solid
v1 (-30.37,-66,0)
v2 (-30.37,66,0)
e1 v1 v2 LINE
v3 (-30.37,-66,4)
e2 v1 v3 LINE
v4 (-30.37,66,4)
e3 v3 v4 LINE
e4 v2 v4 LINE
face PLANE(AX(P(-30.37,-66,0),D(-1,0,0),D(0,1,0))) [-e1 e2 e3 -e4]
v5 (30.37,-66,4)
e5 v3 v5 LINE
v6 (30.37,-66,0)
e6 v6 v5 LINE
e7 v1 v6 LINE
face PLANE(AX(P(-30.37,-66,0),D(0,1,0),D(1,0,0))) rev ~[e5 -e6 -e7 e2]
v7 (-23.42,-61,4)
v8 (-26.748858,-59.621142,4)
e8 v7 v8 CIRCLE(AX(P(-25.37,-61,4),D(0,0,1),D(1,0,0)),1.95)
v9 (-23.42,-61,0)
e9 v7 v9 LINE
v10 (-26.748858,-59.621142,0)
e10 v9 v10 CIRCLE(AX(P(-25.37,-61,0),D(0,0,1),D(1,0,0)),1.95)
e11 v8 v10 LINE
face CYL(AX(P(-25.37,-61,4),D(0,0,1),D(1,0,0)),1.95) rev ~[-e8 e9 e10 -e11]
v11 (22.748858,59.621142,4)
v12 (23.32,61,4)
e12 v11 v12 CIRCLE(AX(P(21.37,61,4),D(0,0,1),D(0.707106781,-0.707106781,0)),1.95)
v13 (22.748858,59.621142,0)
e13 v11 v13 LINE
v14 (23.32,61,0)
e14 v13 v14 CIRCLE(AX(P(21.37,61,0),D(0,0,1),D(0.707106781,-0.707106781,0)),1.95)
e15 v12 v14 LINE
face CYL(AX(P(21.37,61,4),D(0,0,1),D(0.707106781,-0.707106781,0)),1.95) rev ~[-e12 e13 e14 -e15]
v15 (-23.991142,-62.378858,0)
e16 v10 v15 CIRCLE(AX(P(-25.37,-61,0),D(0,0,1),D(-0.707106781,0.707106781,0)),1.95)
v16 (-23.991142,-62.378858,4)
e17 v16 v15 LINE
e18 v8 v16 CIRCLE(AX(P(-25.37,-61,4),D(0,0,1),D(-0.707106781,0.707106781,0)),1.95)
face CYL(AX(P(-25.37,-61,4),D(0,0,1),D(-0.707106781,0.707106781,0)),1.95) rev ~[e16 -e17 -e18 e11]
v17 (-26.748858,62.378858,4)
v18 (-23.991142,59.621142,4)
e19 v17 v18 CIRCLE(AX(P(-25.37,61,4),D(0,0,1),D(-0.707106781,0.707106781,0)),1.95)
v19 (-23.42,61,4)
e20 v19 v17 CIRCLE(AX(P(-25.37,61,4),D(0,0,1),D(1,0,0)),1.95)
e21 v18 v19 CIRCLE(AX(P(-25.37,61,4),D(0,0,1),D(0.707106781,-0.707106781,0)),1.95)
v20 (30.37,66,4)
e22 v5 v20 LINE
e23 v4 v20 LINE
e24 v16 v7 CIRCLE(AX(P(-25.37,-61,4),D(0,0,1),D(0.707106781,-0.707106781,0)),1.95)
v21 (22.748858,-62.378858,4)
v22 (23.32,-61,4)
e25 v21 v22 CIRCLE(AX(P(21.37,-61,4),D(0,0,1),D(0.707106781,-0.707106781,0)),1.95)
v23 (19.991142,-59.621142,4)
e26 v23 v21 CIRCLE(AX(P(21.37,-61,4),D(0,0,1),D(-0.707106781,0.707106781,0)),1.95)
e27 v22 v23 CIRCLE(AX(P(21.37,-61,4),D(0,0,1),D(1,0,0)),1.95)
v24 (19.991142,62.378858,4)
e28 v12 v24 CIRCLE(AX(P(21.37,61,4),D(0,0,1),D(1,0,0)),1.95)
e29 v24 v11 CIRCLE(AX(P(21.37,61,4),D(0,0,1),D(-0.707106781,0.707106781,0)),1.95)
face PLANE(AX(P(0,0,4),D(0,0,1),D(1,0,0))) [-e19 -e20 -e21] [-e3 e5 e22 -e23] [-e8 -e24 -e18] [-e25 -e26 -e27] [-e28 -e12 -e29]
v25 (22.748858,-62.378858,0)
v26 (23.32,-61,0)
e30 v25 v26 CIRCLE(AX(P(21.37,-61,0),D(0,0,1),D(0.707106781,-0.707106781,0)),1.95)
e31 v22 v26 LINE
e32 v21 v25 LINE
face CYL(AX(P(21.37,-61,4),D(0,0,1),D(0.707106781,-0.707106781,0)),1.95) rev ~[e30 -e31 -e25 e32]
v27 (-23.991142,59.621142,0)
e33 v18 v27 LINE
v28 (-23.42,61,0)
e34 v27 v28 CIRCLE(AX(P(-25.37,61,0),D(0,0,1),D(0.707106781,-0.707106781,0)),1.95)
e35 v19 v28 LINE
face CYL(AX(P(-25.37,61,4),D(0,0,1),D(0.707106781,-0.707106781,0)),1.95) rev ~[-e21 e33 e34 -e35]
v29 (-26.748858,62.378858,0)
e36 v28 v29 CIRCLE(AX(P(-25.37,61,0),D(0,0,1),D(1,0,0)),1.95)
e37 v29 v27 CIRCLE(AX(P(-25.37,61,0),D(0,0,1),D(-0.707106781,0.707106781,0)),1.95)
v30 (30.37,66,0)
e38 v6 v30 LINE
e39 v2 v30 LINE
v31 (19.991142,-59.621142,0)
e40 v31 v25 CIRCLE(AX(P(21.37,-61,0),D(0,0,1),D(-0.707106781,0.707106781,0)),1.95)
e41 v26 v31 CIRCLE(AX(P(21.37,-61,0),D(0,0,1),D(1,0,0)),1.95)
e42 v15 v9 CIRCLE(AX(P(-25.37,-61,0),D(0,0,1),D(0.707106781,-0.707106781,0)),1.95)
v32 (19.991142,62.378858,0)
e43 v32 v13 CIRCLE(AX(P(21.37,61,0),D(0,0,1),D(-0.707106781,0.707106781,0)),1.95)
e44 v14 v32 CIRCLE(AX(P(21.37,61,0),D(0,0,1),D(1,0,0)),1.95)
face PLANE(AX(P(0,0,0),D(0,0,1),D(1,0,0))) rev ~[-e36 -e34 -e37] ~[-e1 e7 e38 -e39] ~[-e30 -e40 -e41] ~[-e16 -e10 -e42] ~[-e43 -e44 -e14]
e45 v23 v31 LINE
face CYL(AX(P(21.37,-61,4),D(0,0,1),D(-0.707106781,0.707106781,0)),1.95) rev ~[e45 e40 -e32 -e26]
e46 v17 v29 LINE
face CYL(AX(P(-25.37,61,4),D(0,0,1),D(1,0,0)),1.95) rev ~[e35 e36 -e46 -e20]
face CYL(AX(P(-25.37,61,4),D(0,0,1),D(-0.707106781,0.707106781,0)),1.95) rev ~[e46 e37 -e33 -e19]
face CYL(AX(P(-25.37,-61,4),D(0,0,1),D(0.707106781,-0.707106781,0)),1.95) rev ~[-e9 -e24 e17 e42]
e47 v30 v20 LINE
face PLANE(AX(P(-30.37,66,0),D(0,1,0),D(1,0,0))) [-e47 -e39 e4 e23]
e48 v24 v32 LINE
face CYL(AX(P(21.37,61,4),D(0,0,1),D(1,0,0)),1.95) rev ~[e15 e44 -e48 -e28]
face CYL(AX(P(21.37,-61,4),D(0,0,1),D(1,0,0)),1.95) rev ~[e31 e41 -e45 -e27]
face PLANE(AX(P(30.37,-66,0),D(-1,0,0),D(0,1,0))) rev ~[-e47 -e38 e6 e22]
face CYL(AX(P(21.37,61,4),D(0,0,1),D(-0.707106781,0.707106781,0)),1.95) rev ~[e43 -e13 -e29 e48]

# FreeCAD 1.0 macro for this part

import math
import FreeCAD as App
import Part
import Sketcher
from FreeCAD import Vector
Q = App.Units.Quantity

doc = App.newDocument("Part")
body = doc.addObject("PartDesign::Body", "Body")

# Sketch on XY plane
sketch1 = body.newObject("Sketcher::SketchObject", "Sketch")
sketch1.AttachmentSupport = (doc.getObject("XY_Plane"), [""])
sketch1.MapMode = "FlatFace"
sketch1.addGeometry(Part.LineSegment(Vector(-30, 66, 0), Vector(-30, -66, 0)), False)
sketch1.addGeometry(Part.LineSegment(Vector(-30, -66, 0), Vector(30, -66, 0)), False)
sketch1.addGeometry(Part.LineSegment(Vector(30, -66, 0), Vector(30, 66, 0)), False)
sketch1.addGeometry(Part.LineSegment(Vector(30, 66, 0), Vector(-30, 66, 0)), False)
sketch1.addConstraint(Sketcher.Constraint("Coincident", 0, 2, 1, 1))
sketch1.addConstraint(Sketcher.Constraint("Coincident", 1, 2, 2, 1))
sketch1.addConstraint(Sketcher.Constraint("Coincident", 2, 2, 3, 1))
sketch1.addConstraint(Sketcher.Constraint("Coincident", 3, 2, 0, 1))
sketch1.addConstraint(Sketcher.Constraint("Vertical", 0))
sketch1.addConstraint(Sketcher.Constraint("Horizontal", 1))
sketch1.addConstraint(Sketcher.Constraint("Vertical", 2))
sketch1.addConstraint(Sketcher.Constraint("Horizontal", 3))
sketch1.addConstraint(Sketcher.Constraint("Symmetric", 0, 2, 2, 2, -1, 1))
sketch1.addConstraint(Sketcher.Constraint("DistanceY", 0, 2, 0, 1, Q("132 mm")))
sketch1.addConstraint(Sketcher.Constraint("DistanceX", 1, 1, 1, 2, Q("60.74 mm")))
pad1 = body.newObject("PartDesign::Pad", "Pad")
pad1.Profile = sketch1
pad1.Length = 4

# Sketch on XY plane
sketch2 = body.newObject("Sketcher::SketchObject", "Sketch001")
sketch2.AttachmentSupport = (doc.getObject("XY_Plane"), [""])
sketch2.MapMode = "FlatFace"
sketch2.AttachmentOffset = App.Placement(Vector(0, 0, 4), App.Rotation())
sketch2.addGeometry(Part.ArcOfCircle(Part.Circle(Vector(-25.4, 61, 0), Vector(0, 0, 1), 1.9), math.radians(135), math.radians(315)), False)
sketch2.addGeometry(Part.ArcOfCircle(Part.Circle(Vector(-25.4, 61, 0), Vector(0, 0, 1), 1.9), math.radians(-45), math.radians(0)), False)
sketch2.addGeometry(Part.ArcOfCircle(Part.Circle(Vector(-25.4, 61, 0), Vector(0, 0, 1), 1.9), math.radians(0), math.radians(135)), False)
sketch2.addGeometry(Part.ArcOfCircle(Part.Circle(Vector(21.4, 61, 0), Vector(0, 0, 1), 1.9), math.radians(135), math.radians(315)), False)
sketch2.addGeometry(Part.ArcOfCircle(Part.Circle(Vector(21.4, 61, 0), Vector(0, 0, 1), 1.9), math.radians(-45), math.radians(0)), False)
sketch2.addGeometry(Part.ArcOfCircle(Part.Circle(Vector(21.4, 61, 0), Vector(0, 0, 1), 1.9), math.radians(0), math.radians(135)), False)
sketch2.addGeometry(Part.ArcOfCircle(Part.Circle(Vector(-25.4, -61, 0), Vector(0, 0, 1), 1.9), math.radians(0), math.radians(135)), False)
sketch2.addGeometry(Part.ArcOfCircle(Part.Circle(Vector(-25.4, -61, 0), Vector(0, 0, 1), 1.9), math.radians(135), math.radians(315)), False)
sketch2.addGeometry(Part.ArcOfCircle(Part.Circle(Vector(-25.4, -61, 0), Vector(0, 0, 1), 1.9), math.radians(-45), math.radians(0)), False)
sketch2.addGeometry(Part.ArcOfCircle(Part.Circle(Vector(21.4, -61, 0), Vector(0, 0, 1), 1.9), math.radians(135), math.radians(315)), False)
sketch2.addGeometry(Part.ArcOfCircle(Part.Circle(Vector(21.4, -61, 0), Vector(0, 0, 1), 1.9), math.radians(-45), math.radians(0)), False)
sketch2.addGeometry(Part.ArcOfCircle(Part.Circle(Vector(21.4, -61, 0), Vector(0, 0, 1), 1.9), math.radians(0), math.radians(135)), False)
sketch2.addConstraint(Sketcher.Constraint("Tangent", 0, 2, 1, 1))
sketch2.addConstraint(Sketcher.Constraint("Tangent", 1, 2, 2, 1))
sketch2.addConstraint(Sketcher.Constraint("Tangent", 2, 2, 0, 1))
sketch2.addConstraint(Sketcher.Constraint("Tangent", 3, 2, 4, 1))
sketch2.addConstraint(Sketcher.Constraint("Tangent", 4, 2, 5, 1))
sketch2.addConstraint(Sketcher.Constraint("Tangent", 5, 2, 3, 1))
sketch2.addConstraint(Sketcher.Constraint("Tangent", 6, 2, 7, 1))
sketch2.addConstraint(Sketcher.Constraint("Tangent", 7, 2, 8, 1))
sketch2.addConstraint(Sketcher.Constraint("Tangent", 8, 2, 6, 1))
sketch2.addConstraint(Sketcher.Constraint("Tangent", 9, 2, 10, 1))
sketch2.addConstraint(Sketcher.Constraint("Tangent", 10, 2, 11, 1))
sketch2.addConstraint(Sketcher.Constraint("Tangent", 11, 2, 9, 1))
sketch2.addConstraint(Sketcher.Constraint("Equal", 2, 3))
sketch2.addConstraint(Sketcher.Constraint("Equal", 5, 6))
sketch2.addConstraint(Sketcher.Constraint("Equal", 8, 9))
sketch2.addConstraint(Sketcher.Constraint("Symmetric", 0, 3, 6, 3, -1))
sketch2.addConstraint(Sketcher.Constraint("Symmetric", 3, 3, 9, 3, -1))
sketch2.addConstraint(Sketcher.Constraint("Horizontal", 2, 3, 3, 3))
sketch2.addConstraint(Sketcher.Constraint("Horizontal", 5, 3, 1, 2))
sketch2.addConstraint(Sketcher.Constraint("Horizontal", 0, 2, 3, 2))
sketch2.addConstraint(Sketcher.Constraint("Horizontal", 1, 2, 4, 2))
sketch2.addConstraint(Sketcher.Constraint("Horizontal", 2, 2, 5, 2))
sketch2.addConstraint(Sketcher.Constraint("Horizontal", 11, 3, 8, 2))
sketch2.addConstraint(Sketcher.Constraint("Horizontal", 7, 2, 9, 2))
sketch2.addConstraint(Sketcher.Constraint("Horizontal", 8, 2, 10, 2))
sketch2.addConstraint(Sketcher.Constraint("Horizontal", 6, 2, 11, 2))
sketch2.addConstraint(Sketcher.Constraint("Vertical", 2, 2, 6, 2))
sketch2.addConstraint(Sketcher.Constraint("Vertical", 0, 2, 7, 2))
sketch2.addConstraint(Sketcher.Constraint("Radius", 0, Q("1.95 mm")))
sketch2.addConstraint(Sketcher.Constraint("DistanceY", -1, 1, 0, 3, Q("61 mm")))
sketch2.addConstraint(Sketcher.Constraint("DistanceX", 0, 3, -1, 1, Q("25.37 mm")))
sketch2.addConstraint(Sketcher.Constraint("DistanceX", -1, 1, 3, 3, Q("21.37 mm")))
sketch2.addConstraint(Sketcher.Constraint("DistanceX", 0, 2, -1, 1, Q("23.991142 mm")))
sketch2.addConstraint(Sketcher.Constraint("DistanceX", 2, 2, -1, 1, Q("26.748858 mm")))
pocket1 = body.newObject("PartDesign::Pocket", "Pocket")
pocket1.Profile = sketch2
pocket1.Length = 4

doc.recompute()
